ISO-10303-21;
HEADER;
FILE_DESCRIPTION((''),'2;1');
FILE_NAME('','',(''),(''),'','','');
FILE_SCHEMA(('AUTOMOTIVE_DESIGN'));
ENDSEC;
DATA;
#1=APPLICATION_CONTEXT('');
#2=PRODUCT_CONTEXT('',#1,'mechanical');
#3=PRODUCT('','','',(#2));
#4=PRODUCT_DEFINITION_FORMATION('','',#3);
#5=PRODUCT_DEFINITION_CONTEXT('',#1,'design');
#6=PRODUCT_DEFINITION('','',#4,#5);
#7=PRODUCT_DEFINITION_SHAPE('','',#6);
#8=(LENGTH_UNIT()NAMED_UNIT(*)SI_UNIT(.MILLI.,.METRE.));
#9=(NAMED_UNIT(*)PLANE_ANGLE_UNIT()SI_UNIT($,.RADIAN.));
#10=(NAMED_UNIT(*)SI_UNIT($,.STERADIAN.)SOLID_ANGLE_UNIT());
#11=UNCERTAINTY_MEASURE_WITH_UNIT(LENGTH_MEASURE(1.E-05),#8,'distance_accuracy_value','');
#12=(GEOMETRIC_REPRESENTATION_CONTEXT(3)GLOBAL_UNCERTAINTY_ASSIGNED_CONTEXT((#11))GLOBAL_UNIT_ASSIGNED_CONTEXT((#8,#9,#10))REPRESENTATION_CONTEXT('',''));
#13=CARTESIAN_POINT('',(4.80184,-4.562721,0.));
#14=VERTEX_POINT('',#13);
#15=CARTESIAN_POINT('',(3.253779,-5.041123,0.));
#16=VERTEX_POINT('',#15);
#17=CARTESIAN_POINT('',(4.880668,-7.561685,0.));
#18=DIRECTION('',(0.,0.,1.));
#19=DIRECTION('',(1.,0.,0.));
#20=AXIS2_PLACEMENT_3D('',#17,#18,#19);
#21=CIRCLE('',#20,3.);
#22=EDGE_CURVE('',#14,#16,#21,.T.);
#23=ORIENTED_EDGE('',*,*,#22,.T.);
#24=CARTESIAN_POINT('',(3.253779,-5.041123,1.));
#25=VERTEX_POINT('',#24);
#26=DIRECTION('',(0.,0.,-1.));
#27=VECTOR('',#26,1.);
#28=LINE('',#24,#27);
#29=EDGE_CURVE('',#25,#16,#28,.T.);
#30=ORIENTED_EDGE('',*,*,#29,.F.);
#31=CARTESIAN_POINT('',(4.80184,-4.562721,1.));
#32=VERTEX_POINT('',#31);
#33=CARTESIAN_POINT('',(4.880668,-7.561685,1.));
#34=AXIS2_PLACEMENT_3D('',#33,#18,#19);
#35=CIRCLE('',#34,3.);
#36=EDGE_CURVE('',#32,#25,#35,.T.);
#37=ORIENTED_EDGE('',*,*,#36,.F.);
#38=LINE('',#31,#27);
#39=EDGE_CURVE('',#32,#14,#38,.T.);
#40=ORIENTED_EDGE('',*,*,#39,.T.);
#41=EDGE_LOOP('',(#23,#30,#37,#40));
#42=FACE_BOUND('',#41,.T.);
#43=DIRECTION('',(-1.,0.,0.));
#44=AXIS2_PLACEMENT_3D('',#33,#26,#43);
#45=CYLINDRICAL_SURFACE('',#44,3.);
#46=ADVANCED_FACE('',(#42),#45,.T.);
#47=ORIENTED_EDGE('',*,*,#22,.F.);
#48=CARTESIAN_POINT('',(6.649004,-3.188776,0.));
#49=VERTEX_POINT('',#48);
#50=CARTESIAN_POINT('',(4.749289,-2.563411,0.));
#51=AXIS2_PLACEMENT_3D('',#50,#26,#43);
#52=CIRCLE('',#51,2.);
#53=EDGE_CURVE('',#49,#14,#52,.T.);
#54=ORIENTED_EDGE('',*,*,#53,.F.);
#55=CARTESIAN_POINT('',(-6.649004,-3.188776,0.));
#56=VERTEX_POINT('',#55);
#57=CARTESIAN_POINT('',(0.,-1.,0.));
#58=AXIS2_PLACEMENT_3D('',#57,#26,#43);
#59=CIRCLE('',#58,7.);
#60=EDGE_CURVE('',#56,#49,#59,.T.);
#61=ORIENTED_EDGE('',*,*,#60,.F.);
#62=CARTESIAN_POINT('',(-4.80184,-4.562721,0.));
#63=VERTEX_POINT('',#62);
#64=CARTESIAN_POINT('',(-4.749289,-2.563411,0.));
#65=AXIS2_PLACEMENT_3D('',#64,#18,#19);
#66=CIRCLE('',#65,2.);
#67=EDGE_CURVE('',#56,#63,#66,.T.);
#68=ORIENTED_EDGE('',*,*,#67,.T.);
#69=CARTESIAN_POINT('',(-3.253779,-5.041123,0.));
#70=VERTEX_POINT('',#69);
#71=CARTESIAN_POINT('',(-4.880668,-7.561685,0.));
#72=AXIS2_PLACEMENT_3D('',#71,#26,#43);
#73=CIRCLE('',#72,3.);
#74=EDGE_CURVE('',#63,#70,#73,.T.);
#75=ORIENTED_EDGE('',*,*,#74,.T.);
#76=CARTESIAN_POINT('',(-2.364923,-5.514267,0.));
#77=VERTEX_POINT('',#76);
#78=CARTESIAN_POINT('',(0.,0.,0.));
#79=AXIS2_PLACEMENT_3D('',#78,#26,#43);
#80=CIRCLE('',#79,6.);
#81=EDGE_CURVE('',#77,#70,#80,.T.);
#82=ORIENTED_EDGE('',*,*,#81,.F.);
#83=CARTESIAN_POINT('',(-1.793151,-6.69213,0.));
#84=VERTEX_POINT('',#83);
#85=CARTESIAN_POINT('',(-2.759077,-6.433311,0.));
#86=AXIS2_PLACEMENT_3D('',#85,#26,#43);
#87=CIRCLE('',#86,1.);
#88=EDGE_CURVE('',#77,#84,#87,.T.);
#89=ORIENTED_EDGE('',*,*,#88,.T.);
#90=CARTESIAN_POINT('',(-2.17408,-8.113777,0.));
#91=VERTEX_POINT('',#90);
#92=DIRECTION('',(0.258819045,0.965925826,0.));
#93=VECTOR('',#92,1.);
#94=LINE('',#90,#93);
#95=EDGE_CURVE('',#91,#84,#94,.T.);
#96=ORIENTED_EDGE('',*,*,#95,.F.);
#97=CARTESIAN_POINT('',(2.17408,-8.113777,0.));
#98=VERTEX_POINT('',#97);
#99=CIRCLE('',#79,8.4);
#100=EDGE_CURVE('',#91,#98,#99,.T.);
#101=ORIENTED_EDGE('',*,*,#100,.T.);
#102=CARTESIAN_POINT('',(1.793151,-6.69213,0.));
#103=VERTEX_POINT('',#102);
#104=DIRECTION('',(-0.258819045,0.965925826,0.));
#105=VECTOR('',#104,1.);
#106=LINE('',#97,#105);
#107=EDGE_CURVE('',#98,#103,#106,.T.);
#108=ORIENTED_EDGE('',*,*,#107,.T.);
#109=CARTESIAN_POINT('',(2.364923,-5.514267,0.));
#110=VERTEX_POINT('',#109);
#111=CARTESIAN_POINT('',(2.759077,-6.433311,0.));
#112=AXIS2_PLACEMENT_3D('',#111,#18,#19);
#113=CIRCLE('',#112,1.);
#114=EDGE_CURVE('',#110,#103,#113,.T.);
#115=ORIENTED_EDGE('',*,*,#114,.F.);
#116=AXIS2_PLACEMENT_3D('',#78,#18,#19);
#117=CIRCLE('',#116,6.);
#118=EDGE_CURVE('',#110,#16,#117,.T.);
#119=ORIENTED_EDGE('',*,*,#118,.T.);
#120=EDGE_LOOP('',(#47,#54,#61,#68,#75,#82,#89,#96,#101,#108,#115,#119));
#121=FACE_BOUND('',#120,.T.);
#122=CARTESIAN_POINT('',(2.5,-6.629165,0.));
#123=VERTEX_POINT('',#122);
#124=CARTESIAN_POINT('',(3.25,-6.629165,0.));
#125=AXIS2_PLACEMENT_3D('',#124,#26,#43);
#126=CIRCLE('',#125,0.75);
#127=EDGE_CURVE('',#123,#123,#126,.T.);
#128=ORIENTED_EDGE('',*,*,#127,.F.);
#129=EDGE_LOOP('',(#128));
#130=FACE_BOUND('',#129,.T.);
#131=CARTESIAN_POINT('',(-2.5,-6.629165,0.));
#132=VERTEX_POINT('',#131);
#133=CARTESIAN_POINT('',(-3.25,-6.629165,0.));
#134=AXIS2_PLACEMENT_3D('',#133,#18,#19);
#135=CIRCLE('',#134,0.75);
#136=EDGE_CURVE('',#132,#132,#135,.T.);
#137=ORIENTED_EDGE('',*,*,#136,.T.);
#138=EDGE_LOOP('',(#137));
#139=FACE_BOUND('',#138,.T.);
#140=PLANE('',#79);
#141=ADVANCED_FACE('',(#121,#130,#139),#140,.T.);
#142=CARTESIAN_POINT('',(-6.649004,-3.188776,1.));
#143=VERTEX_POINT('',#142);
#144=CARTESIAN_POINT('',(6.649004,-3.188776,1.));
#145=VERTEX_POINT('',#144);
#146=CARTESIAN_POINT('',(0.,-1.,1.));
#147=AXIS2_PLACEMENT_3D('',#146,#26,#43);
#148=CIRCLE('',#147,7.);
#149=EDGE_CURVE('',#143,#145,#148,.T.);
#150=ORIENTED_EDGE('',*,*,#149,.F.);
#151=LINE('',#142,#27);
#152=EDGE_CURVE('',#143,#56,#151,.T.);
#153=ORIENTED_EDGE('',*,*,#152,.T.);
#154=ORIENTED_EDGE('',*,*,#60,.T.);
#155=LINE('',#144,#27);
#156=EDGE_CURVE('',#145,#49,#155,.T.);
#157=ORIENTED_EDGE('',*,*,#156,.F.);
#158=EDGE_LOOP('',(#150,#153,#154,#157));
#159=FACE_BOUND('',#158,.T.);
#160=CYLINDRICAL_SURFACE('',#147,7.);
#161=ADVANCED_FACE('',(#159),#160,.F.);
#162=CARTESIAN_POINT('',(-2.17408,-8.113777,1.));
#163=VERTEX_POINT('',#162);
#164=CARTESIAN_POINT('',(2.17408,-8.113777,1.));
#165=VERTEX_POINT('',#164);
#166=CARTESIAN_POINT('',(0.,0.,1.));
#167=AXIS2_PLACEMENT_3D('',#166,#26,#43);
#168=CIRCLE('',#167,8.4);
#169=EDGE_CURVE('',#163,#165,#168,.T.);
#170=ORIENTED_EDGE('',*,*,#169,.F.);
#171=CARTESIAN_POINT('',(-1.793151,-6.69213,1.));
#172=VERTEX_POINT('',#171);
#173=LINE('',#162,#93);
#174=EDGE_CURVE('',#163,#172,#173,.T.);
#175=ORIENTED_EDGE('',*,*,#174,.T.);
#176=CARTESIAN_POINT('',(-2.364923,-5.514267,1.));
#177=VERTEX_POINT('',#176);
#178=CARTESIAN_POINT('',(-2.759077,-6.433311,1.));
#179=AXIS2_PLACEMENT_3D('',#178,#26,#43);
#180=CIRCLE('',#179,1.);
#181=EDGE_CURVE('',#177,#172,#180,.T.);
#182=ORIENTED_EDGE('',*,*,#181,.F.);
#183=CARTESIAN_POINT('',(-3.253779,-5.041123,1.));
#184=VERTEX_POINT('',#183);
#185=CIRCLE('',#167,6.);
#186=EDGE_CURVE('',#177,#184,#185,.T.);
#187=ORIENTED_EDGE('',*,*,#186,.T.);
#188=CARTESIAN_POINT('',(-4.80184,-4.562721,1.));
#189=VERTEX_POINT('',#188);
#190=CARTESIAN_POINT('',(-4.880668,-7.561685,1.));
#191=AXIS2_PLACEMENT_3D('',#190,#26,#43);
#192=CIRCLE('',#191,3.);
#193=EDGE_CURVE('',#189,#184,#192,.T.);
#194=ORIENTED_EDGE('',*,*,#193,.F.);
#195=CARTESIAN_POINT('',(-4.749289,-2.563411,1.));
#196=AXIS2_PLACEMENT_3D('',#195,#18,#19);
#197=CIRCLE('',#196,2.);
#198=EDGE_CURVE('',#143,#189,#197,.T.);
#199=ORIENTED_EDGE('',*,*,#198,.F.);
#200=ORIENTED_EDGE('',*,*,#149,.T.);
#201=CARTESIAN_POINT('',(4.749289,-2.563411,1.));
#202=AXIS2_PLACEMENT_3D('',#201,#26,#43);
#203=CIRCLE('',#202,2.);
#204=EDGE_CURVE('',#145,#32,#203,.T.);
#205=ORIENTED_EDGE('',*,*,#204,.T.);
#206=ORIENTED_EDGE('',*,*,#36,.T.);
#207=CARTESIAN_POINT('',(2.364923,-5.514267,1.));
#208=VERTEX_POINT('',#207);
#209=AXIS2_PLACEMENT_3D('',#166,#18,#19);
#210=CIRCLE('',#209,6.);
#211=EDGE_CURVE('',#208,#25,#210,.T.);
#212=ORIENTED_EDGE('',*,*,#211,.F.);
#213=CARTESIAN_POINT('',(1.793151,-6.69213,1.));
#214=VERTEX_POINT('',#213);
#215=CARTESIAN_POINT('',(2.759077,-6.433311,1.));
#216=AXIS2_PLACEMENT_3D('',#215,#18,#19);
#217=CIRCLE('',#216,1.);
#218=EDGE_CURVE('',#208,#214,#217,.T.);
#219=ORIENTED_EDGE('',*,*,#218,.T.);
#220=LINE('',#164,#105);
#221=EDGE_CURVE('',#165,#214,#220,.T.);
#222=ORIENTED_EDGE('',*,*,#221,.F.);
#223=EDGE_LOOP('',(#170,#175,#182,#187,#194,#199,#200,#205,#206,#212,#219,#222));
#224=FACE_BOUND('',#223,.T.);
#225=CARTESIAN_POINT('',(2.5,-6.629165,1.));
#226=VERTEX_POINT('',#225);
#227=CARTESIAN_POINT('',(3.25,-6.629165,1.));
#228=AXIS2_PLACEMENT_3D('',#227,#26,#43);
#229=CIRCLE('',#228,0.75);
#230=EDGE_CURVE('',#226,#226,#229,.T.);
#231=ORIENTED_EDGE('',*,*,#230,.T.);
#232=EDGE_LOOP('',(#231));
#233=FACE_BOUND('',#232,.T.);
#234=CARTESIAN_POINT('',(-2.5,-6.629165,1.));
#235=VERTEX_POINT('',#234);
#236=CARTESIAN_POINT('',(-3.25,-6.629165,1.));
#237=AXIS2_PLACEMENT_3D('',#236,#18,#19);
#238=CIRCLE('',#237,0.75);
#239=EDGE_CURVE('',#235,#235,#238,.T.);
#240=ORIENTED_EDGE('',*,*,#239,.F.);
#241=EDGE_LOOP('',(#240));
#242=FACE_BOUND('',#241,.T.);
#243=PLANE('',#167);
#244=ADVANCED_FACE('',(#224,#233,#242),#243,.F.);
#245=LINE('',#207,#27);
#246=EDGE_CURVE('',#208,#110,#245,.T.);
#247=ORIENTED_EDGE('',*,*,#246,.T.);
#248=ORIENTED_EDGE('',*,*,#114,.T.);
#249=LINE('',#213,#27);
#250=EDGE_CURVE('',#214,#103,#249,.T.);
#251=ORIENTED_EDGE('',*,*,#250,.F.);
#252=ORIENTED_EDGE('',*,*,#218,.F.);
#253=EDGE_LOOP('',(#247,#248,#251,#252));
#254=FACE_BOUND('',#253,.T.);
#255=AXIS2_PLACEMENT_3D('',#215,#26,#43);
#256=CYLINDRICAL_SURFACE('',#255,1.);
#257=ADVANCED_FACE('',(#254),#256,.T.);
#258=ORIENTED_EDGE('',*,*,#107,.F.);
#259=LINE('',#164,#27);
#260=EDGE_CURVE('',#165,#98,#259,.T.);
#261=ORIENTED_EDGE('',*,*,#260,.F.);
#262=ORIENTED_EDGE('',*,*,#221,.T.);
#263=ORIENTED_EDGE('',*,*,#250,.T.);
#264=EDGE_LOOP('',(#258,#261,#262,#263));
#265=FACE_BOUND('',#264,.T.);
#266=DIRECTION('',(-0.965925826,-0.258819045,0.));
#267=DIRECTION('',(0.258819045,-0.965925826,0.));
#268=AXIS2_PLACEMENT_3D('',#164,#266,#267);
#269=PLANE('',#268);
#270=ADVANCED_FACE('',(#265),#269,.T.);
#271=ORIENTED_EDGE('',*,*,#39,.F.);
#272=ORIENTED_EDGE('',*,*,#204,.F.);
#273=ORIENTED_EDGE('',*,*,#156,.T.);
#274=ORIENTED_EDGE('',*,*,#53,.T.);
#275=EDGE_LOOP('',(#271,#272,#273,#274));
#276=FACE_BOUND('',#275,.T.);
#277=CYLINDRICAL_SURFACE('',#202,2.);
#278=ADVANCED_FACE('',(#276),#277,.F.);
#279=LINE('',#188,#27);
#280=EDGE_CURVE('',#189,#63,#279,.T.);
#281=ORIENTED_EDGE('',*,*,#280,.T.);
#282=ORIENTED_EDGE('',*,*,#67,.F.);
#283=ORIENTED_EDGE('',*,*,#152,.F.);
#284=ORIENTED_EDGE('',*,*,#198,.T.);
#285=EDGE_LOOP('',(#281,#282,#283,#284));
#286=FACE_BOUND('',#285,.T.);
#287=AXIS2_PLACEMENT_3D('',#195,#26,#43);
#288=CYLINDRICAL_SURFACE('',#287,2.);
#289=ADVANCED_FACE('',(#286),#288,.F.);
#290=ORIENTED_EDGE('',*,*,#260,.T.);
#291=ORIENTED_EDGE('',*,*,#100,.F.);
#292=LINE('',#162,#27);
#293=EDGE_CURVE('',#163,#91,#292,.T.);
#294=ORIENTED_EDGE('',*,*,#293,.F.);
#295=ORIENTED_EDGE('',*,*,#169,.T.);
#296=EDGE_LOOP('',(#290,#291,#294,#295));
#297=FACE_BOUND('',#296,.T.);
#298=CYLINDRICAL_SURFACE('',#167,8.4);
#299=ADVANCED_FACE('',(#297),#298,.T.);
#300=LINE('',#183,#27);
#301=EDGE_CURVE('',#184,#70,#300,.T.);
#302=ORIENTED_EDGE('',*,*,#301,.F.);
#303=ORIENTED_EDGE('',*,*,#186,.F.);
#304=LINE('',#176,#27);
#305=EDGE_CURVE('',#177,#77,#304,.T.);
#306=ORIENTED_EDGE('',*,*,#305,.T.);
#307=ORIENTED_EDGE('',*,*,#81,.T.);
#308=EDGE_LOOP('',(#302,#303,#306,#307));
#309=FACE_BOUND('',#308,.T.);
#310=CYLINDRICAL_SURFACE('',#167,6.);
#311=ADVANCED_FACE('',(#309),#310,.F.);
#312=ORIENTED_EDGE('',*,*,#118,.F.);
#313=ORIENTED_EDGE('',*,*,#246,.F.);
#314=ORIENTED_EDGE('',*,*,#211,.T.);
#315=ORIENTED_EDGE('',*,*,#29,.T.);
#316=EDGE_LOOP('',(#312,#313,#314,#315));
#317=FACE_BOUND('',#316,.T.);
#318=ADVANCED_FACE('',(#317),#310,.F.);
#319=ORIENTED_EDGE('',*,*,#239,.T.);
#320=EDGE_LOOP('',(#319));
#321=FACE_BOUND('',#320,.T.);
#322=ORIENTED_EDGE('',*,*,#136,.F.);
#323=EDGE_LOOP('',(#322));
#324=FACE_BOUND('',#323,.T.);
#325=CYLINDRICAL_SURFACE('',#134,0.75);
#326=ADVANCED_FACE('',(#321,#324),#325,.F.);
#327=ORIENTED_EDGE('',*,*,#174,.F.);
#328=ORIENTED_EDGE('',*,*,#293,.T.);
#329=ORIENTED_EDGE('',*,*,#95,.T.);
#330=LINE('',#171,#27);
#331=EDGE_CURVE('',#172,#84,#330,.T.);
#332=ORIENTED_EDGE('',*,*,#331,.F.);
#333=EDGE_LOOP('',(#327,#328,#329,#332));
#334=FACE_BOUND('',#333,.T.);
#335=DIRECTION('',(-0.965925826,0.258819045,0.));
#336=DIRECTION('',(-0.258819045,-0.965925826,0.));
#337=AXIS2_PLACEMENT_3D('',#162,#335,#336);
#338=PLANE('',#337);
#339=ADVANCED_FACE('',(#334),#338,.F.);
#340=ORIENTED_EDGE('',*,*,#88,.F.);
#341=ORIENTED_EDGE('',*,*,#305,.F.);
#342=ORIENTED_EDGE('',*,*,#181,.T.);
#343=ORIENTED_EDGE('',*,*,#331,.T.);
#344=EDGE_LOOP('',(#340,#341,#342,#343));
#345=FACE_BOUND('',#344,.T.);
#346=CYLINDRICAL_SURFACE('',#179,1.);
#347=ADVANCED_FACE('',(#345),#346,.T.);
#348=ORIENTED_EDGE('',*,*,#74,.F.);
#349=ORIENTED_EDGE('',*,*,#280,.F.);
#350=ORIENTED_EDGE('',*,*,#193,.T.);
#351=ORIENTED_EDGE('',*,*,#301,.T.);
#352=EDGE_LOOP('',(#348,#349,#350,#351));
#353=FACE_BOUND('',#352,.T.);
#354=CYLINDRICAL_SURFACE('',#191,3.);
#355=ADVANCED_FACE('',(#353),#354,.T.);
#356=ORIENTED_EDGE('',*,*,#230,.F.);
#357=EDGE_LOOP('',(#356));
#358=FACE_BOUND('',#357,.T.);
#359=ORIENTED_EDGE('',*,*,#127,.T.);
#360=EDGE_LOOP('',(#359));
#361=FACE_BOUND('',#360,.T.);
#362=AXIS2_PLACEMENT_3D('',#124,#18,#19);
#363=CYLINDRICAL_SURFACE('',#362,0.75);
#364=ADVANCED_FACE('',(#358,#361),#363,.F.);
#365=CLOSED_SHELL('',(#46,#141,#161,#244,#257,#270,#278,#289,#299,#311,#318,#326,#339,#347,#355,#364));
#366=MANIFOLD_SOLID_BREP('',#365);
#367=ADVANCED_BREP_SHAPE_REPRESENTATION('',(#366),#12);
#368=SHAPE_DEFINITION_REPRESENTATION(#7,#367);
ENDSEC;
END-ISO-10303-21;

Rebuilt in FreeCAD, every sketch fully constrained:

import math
import FreeCAD as App
import Part
import Sketcher

V = App.Vector
Q = App.Units.Quantity

doc = App.newDocument("Part")
body = doc.addObject("PartDesign::Body", "Body")

sketch1 = doc.addObject("Sketcher::SketchObject", "Sketch")
body.addObject(sketch1)
sketch1.AttachmentSupport = (doc.XY_Plane, [""])
sketch1.MapMode = "FlatFace"
sketch1.addGeometry([
    Part.LineSegment(V(-2.17408, -8.113777, 0), V(-1.793151, -6.69213, 0)),
    Part.ArcOfCircle(Part.Circle(V(-2.759077, -6.433311, 0), V(0, 0, 1), 1), math.radians(-15), math.radians(66.786789)),
    Part.ArcOfCircle(Part.Circle(V(0, 0, 0), V(0, 0, 1), 6), math.radians(-122.840103), math.radians(-113.213211)),
    Part.ArcOfCircle(Part.Circle(V(-4.880668, -7.561685, 0), V(0, 0, 1), 3), math.radians(57.159896), math.radians(88.494335)),
    Part.ArcOfCircle(Part.Circle(V(-4.749289, -2.563411, 0), V(0, 0, 1), 2), math.radians(-161.779048), math.radians(-91.505665)),
    Part.ArcOfCircle(Part.Circle(V(0, -1, 0), V(0, 0, 1), 7), math.radians(90), math.radians(198.220952)),
    Part.LineSegment(V(0, 6, 0), V(0, 8.4, 0)),
    Part.ArcOfCircle(Part.Circle(V(0, 0, 0), V(0, 0, 1), 8.4), math.radians(90), math.radians(255)),
], False)
sketch1.addConstraint([
    Sketcher.Constraint("Tangent", 0, 2, 1, 1),
    Sketcher.Constraint("Tangent", 1, 2, 2, 2),
    Sketcher.Constraint("Tangent", 2, 1, 3, 1),
    Sketcher.Constraint("Tangent", 3, 2, 4, 2),
    Sketcher.Constraint("Tangent", 4, 1, 5, 2),
    Sketcher.Constraint("Coincident", 5, 1, 6, 1),
    Sketcher.Constraint("Coincident", 6, 2, 7, 1),
    Sketcher.Constraint("Coincident", 7, 2, 0, 1),
    Sketcher.Constraint("Vertical", 6),
    Sketcher.Constraint("Coincident", 2, 3, -1, 1),
    Sketcher.Constraint("Coincident", 7, 3, -1, 1),
    Sketcher.Constraint("PointOnObject", 5, 3, -2),
    Sketcher.Constraint("PointOnObject", 5, 1, -2),
    Sketcher.Constraint("Radius", 1, Q("1 mm")),
    Sketcher.Constraint("Radius", 2, Q("6 mm")),
    Sketcher.Constraint("Radius", 3, Q("3 mm")),
    Sketcher.Constraint("Radius", 4, Q("2 mm")),
    Sketcher.Constraint("Radius", 5, Q("7 mm")),
    Sketcher.Constraint("Radius", 7, Q("8.4 mm")),
    Sketcher.Constraint("Angle", 0, Q("75 deg")),
    Sketcher.Constraint("DistanceY", 6, 1, 6, 2, Q("2.4 mm")),
    Sketcher.Constraint("DistanceY", 1, 3, 4, 3, Q("3.8699 mm")),
    Sketcher.Constraint("DistanceX", 2, 1, 1, 3, Q("0.494702 mm")),
])
pad1 = doc.addObject("PartDesign::Pad", "Pad")
body.addObject(pad1)
pad1.Profile = sketch1
pad1.Length = 1
doc.recompute()

mirrored = doc.addObject("PartDesign::Mirrored", "Mirrored")
body.addObject(mirrored)
mirrored.Originals = [pad1]
mirrored.MirrorPlane = (doc.YZ_Plane, [""])
body.Tip = mirrored

sketch2 = doc.addObject("Sketcher::SketchObject", "Sketch001")
body.addObject(sketch2)
sketch2.AttachmentSupport = (doc.XY_Plane, [""])
sketch2.MapMode = "FlatFace"
sketch2.AttachmentOffset = App.Placement(V(0, 0, 1), App.Rotation())
sketch2.addGeometry(Part.Circle(V(-3.25, -6.629165, 0), V(0, 0, 1), 0.75), False)
sketch2.addConstraint([
    Sketcher.Constraint("Diameter", 0, Q("1.5 mm")),
    Sketcher.Constraint("DistanceX", 0, 3, -1, 1, Q("3.25 mm")),
    Sketcher.Constraint("DistanceY", 0, 3, -1, 1, Q("6.629165 mm")),
])
pocket1 = doc.addObject("PartDesign::Pocket", "Pocket")
body.addObject(pocket1)
pocket1.Profile = sketch2
pocket1.Type = "ThroughAll"
doc.recompute()

mirrored2 = doc.addObject("PartDesign::Mirrored", "Mirrored001")
body.addObject(mirrored2)
mirrored2.Originals = [pocket1]
mirrored2.MirrorPlane = (doc.YZ_Plane, [""])
body.Tip = mirrored2

doc.recompute()
